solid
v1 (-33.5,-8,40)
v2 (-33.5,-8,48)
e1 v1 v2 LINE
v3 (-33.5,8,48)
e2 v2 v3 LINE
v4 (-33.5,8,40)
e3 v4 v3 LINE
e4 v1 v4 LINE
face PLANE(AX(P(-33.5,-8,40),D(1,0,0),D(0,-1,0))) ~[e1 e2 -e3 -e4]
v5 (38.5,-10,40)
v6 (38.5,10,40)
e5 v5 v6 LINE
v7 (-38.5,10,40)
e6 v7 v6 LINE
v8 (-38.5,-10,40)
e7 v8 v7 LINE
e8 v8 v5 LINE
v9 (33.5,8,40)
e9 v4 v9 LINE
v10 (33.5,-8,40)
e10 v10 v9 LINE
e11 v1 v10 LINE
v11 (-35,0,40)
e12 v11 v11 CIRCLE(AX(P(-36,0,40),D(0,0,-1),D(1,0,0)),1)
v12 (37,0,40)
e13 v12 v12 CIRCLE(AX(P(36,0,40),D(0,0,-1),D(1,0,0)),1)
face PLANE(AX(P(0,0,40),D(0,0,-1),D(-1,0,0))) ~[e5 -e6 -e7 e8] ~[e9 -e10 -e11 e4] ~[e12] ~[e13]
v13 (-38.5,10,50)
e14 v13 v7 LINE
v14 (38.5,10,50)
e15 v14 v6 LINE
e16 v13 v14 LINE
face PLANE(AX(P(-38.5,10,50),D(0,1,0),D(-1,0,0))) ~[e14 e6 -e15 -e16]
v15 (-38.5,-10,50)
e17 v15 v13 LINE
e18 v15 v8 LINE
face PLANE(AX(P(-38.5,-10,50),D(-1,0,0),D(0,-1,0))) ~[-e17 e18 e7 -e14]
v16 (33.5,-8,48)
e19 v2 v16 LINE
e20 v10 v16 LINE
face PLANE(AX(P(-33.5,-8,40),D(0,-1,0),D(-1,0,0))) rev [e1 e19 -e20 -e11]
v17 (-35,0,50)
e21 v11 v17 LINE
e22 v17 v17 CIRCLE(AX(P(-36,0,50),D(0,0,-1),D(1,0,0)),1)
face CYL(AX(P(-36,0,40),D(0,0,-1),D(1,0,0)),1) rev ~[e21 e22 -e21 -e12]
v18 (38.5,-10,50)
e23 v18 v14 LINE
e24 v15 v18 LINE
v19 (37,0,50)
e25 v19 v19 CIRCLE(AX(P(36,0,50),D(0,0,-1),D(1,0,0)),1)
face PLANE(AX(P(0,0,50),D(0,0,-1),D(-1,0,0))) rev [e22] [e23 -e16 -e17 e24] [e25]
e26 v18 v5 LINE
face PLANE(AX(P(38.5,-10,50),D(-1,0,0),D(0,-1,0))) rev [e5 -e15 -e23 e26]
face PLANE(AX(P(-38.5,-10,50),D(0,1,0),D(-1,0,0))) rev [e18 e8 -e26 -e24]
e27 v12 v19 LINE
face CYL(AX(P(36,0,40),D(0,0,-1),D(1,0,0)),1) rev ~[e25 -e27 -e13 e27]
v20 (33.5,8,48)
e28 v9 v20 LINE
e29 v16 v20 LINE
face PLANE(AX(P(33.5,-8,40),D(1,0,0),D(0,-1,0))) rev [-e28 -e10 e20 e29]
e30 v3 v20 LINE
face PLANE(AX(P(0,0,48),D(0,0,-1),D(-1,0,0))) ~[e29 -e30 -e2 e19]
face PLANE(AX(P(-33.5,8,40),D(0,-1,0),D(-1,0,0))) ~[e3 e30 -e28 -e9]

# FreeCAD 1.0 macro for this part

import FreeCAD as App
import Part
import Sketcher
from FreeCAD import Vector
Q = App.Units.Quantity


def add_polygon(sketch, points):
    """Adds a closed chain of lines whose ends are joined by coincident constraints."""
    first, n = sketch.GeometryCount, len(points)
    for a, b in zip(points, points[1:] + points[:1]):
        sketch.addGeometry(Part.LineSegment(App.Vector(*a, 0), App.Vector(*b, 0)), False)
    for i in range(n):
        sketch.addConstraint(Sketcher.Constraint("Coincident", first + i, 2, first + (i + 1) % n, 1))

doc = App.newDocument("Part")
body = doc.addObject("PartDesign::Body", "Body")

sketch1 = doc.addObject("Sketcher::SketchObject", "Sketch")
body.addObject(sketch1)
sketch1.AttachmentSupport = (doc.XY_Plane, [""])
sketch1.MapMode = "FlatFace"
add_polygon(sketch1, [(-38, 10), (-38, -10), (38, -10), (38, 10)])
sketch1.addConstraint(Sketcher.Constraint("Vertical", 0))
sketch1.addConstraint(Sketcher.Constraint("Horizontal", 1))
sketch1.addConstraint(Sketcher.Constraint("Vertical", 2))
sketch1.addConstraint(Sketcher.Constraint("Horizontal", 3))
sketch1.addConstraint(Sketcher.Constraint("Symmetric", 0, 2, 2, 2, -1, 1))
sketch1.addConstraint(Sketcher.Constraint("DistanceX", 1, 1, 1, 2, Q("77 mm")))
sketch1.addConstraint(Sketcher.Constraint("DistanceY", 0, 2, 0, 1, Q("20 mm")))
pad1 = doc.addObject("PartDesign::Pad", "Pad")
body.addObject(pad1)
pad1.Profile = sketch1
pad1.Length = 10

sketch2 = doc.addObject("Sketcher::SketchObject", "Sketch001")
body.addObject(sketch2)
sketch2.AttachmentSupport = (doc.XY_Plane, [""])
sketch2.MapMode = "FlatFace"
sketch2.AttachmentOffset = App.Placement(Vector(0, 0, 10), App.Rotation())
add_polygon(sketch2, [(-34, 8), (-34, -8), (34, -8), (34, 8)])
sketch2.addConstraint(Sketcher.Constraint("Vertical", 0))
sketch2.addConstraint(Sketcher.Constraint("Horizontal", 1))
sketch2.addConstraint(Sketcher.Constraint("Vertical", 2))
sketch2.addConstraint(Sketcher.Constraint("Horizontal", 3))
sketch2.addConstraint(Sketcher.Constraint("Symmetric", 0, 2, 2, 2, -1, 1))
sketch2.addConstraint(Sketcher.Constraint("DistanceX", 1, 1, 1, 2, Q("67 mm")))
sketch2.addConstraint(Sketcher.Constraint("DistanceY", 0, 2, 0, 1, Q("16 mm")))
pocket1 = doc.addObject("PartDesign::Pocket", "Pocket")
body.addObject(pocket1)
pocket1.Profile = sketch2
pocket1.Length = 8
body2 = doc.addObject("PartDesign::Body", "Body001")
doc.recompute()

mirroring = doc.addObject("Part::Mirroring", "Mirroring")
mirroring.Source = body
mirroring.Base = Vector(0, 0, 25)
mirroring.Normal = Vector(0, 0, 1)
body2.BaseFeature = mirroring
doc.recompute()

sketch3 = doc.addObject("Sketcher::SketchObject", "Sketch002")
body2.addObject(sketch3)
sketch3.AttachmentSupport = (doc.getObject("XY_Plane001"), [""])
sketch3.MapMode = "FlatFace"
sketch3.AttachmentOffset = App.Placement(Vector(0, 0, 40), App.Rotation())
sketch3.addGeometry(Part.Circle(Vector(36, 0, 0), Vector(0, 0, 1), 1), False)
sketch3.addGeometry(Part.Circle(Vector(-36, 0, 0), Vector(0, 0, 1), 1), False)
sketch3.addConstraint(Sketcher.Constraint("Equal", 0, 1))
sketch3.addConstraint(Sketcher.Constraint("Symmetric", 0, 3, 1, 3, -1, 1))
sketch3.addConstraint(Sketcher.Constraint("PointOnObject", 0, 3, -1))
sketch3.addConstraint(Sketcher.Constraint("Diameter", 0, Q("2 mm")))
sketch3.addConstraint(Sketcher.Constraint("DistanceX", -1, 1, 0, 3, Q("36 mm")))
pocket2 = doc.addObject("PartDesign::Pocket", "Pocket001")
body2.addObject(pocket2)
pocket2.Profile = sketch3
pocket2.Length = 25
pocket2.Reversed = True
body.Visibility = False
mirroring.Visibility = False

doc.recompute()
